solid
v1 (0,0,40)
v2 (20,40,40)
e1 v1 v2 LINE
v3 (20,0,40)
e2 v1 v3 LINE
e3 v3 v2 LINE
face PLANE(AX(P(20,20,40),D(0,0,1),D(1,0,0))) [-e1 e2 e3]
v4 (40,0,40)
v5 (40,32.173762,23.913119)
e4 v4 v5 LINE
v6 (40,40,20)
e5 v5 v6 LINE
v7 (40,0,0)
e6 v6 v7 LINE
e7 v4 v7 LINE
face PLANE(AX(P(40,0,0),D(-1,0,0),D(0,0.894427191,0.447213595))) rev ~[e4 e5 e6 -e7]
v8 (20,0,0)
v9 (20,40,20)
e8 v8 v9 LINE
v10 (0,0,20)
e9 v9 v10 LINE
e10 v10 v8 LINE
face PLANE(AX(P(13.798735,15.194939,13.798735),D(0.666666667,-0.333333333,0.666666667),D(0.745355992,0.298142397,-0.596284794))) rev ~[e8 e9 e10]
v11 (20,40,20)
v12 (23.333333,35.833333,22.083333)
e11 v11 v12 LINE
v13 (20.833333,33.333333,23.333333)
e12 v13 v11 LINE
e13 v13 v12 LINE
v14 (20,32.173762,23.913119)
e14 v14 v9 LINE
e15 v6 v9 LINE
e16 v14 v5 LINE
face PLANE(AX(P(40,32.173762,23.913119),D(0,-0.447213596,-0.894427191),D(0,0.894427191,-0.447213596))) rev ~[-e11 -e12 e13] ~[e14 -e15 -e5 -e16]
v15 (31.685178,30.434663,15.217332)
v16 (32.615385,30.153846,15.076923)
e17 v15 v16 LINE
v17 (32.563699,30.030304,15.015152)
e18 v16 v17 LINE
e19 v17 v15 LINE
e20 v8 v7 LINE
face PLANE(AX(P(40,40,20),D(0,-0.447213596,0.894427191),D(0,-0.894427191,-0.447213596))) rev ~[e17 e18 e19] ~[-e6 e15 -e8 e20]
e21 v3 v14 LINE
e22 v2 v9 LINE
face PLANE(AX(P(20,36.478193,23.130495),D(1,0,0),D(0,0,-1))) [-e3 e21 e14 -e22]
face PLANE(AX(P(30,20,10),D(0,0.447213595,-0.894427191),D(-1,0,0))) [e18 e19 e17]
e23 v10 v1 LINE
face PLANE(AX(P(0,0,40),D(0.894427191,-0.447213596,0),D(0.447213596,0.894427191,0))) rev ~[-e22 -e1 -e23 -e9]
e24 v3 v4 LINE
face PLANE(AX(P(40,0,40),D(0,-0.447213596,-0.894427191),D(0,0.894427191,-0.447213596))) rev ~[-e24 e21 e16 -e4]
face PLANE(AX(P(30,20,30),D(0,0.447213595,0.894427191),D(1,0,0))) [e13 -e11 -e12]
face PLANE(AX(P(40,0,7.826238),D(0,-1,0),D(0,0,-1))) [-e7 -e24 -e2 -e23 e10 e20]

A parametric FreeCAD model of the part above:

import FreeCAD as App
import Part
import Sketcher
Q = App.Units.Quantity


def add_polygon(sketch, points):
    """Adds a closed chain of lines whose ends are joined by coincident constraints."""
    first, n = sketch.GeometryCount, len(points)
    for a, b in zip(points, points[1:] + points[:1]):
        sketch.addGeometry(Part.LineSegment(App.Vector(*a, 0), App.Vector(*b, 0)), False)
    for i in range(n):
        sketch.addConstraint(Sketcher.Constraint("Coincident", first + i, 2, first + (i + 1) % n, 1))

doc = App.newDocument("Part")
body = doc.addObject("PartDesign::Body", "Body")
body.AllowCompound = True

sketch1 = doc.addObject("Sketcher::SketchObject", "Sketch")
body.addObject(sketch1)
sketch1.AttachmentSupport = (doc.XY_Plane, [""])
sketch1.MapMode = "FlatFace"
add_polygon(sketch1, [(0, 40), (0, 0), (40, 0), (40, 40)])
sketch1.addConstraint([
    Sketcher.Constraint("Vertical", 0),
    Sketcher.Constraint("Horizontal", 1),
    Sketcher.Constraint("Vertical", 2),
    Sketcher.Constraint("Horizontal", 3),
    Sketcher.Constraint("Coincident", 0, 2, -1, 1),
    Sketcher.Constraint("Equal", 3, 0),
    Sketcher.Constraint("DistanceX", 1, 1, 1, 2, Q("40 mm")),
])
pad1 = doc.addObject("PartDesign::Pad", "Pad")
body.addObject(pad1)
pad1.Profile = sketch1
pad1.Length = 40

sketch2 = doc.addObject("Sketcher::SketchObject", "Sketch001")
body.addObject(sketch2)
sketch2.AttachmentSupport = (doc.XY_Plane, [""])
sketch2.MapMode = "FlatFace"
sketch2.AttachmentOffset = App.Placement(App.Vector(0, 0, 40), App.Rotation())
add_polygon(sketch2, [(0, 0), (20, 40), (0, 40)])
sketch2.addConstraint([
    Sketcher.Constraint("Horizontal", 1),
    Sketcher.Constraint("Vertical", 2),
    Sketcher.Constraint("Coincident", 2, 2, -1, 1),
    Sketcher.Constraint("DistanceX", 1, 2, 1, 1, Q("20 mm")),
    Sketcher.Constraint("DistanceY", 2, 2, 2, 1, Q("40 mm")),
])
pocket1 = doc.addObject("PartDesign::Pocket", "Pocket")
body.addObject(pocket1)
pocket1.Profile = sketch2
pocket1.Length = 40

sketch3 = doc.addObject("Sketcher::SketchObject", "Sketch002")
body.addObject(sketch3)
sketch3.AttachmentSupport = (doc.XZ_Plane, [""])
sketch3.MapMode = "FlatFace"
add_polygon(sketch3, [(20, 0), (0, 20), (0, 0)])
sketch3.addConstraint([
    Sketcher.Constraint("Vertical", 1),
    Sketcher.Constraint("Horizontal", 2),
    Sketcher.Constraint("Coincident", 1, 2, -1, 1),
    Sketcher.Constraint("Equal", 2, 1),
    Sketcher.Constraint("DistanceX", 2, 1, 2, 2, Q("20 mm")),
])
pocket2 = doc.addObject("PartDesign::Pocket", "Pocket001")
body.addObject(pocket2)
pocket2.Profile = sketch3
pocket2.Length = 40

sketch4 = doc.addObject("Sketcher::SketchObject", "Sketch003")
body.addObject(sketch4)
sketch4.AttachmentSupport = (doc.YZ_Plane, [""])
sketch4.MapMode = "FlatFace"
sketch4.AttachmentOffset = App.Placement(App.Vector(0, 0, 40), App.Rotation())
add_polygon(sketch4, [(40, 40), (0, 40), (40, 20)])
add_polygon(sketch4, [(40, 0), (40, 20), (0, 0)])
sketch4.addConstraint([
    Sketcher.Constraint("Horizontal", 0),
    Sketcher.Constraint("Vertical", 2),
    Sketcher.Constraint("Vertical", 3),
    Sketcher.Constraint("Horizontal", 5),
    Sketcher.Constraint("Coincident", 4, 2, -1, 1),
    Sketcher.Constraint("Coincident", 3, 2, 1, 2),
    Sketcher.Constraint("PointOnObject", 0, 2, -2),
    Sketcher.Constraint("Equal", 2, 3),
    Sketcher.Constraint("DistanceX", 0, 2, 0, 1, Q("40 mm")),
    Sketcher.Constraint("DistanceY", 2, 1, 2, 2, Q("20 mm")),
])
pocket3 = doc.addObject("PartDesign::Pocket", "Pocket002")
body.addObject(pocket3)
pocket3.Profile = sketch4
pocket3.Length = 20

sketch5 = doc.addObject("Sketcher::SketchObject", "Sketch004")
body.addObject(sketch5)
sketch5.Placement = App.Placement(App.Vector(8.888889, -4.444444, 8.888889), App.Rotation(App.Vector(-0.745355992, -0.298142397, 0.596284794), App.Vector(0, 0.894427191, 0.447213595), App.Vector(-0.666666667, 0.333333333, -0.666666667), "ZXY"))
add_polygon(sketch5, [(-15, 0), (12, 9), (-15, 45)])
sketch5.addConstraint([
    Sketcher.Constraint("Vertical", 2),
    Sketcher.Constraint("PointOnObject", 2, 2, -1),
    Sketcher.Constraint("DistanceY", 2, 2, 2, 1, Q("44.72136 mm")),
    Sketcher.Constraint("Distance", 0, Q("28.284271 mm")),
    Sketcher.Constraint("Distance", 1, Q("44.72136 mm")),
    Sketcher.Constraint("DistanceX", 1, 2, -1, 1, Q("14.90712 mm")),
])
pocket4 = doc.addObject("PartDesign::Pocket", "Pocket003")
body.addObject(pocket4)
pocket4.Profile = sketch5
pocket4.Length = 20
pocket4.Reversed = True

sketch6 = doc.addObject("Sketcher::SketchObject", "Sketch005")
body.addObject(sketch6)
sketch6.Placement = App.Placement(App.Vector(11.111111, 4.444444, -8.888889), App.Rotation(App.Vector(0.553636532, 0.221454613, 0.802772972), App.Vector(-0.371390676, 0.92847669, 0), App.Vector(-0.745355992, -0.298142397, 0.596284794), "ZXY"))
add_polygon(sketch6, [(11, -7), (36, 30), (19, 21)])
sketch6.addConstraint([
    Sketcher.Constraint("Distance", 0, Q("44.72136 mm")),
    Sketcher.Constraint("Distance", 1, Q("19.520889 mm")),
    Sketcher.Constraint("DistanceY", -1, 1, 1, 2, Q("20.56933 mm")),
    Sketcher.Constraint("DistanceX", -1, 1, 2, 2, Q("11.072731 mm")),
    Sketcher.Constraint("Distance", 2, Q("29.027634 mm")),
    Sketcher.Constraint("DistanceX", -1, 1, 0, 2, Q("35.986375 mm")),
])
pocket5 = doc.addObject("PartDesign::Pocket", "Pocket004")
body.addObject(pocket5)
pocket5.Profile = sketch6
pocket5.Length = 20

sketch7 = doc.addObject("Sketcher::SketchObject", "Sketch006")
body.addObject(sketch7)
sketch7.Placement = App.Placement(App.Vector(-5.521049, 6.73568, -3.533471), App.Rotation(App.Vector(0.809280197, 0.520190643, -0.272886895), App.Vector(0, 0.464549364, 0.885547225), App.Vector(0.587422814, -0.716655833, 0.375950601), "ZXY"))
add_polygon(sketch7, [(32, 36), (24, 18), (32, 15)])
sketch7.addConstraint([
    Sketcher.Constraint("Vertical", 2),
    Sketcher.Constraint("Perpendicular", 0, 1),
    Sketcher.Constraint("DistanceX", 0, 2, 1, 2, Q("7.604098 mm")),
    Sketcher.Constraint("Distance", 0, Q("19.520889 mm")),
    Sketcher.Constraint("DistanceX", -1, 1, 1, 2, Q("31.535492 mm")),
    Sketcher.Constraint("DistanceY", -1, 1, 2, 2, Q("36.292919 mm")),
])
pocket6 = doc.addObject("PartDesign::Pocket", "Pocket005")
body.addObject(pocket6)
pocket6.Profile = sketch7
pocket6.Length = 20

sketch8 = doc.addObject("Sketcher::SketchObject", "Sketch007")
body.addObject(sketch8)
sketch8.AttachmentSupport = (doc.YZ_Plane, [""])
sketch8.MapMode = "FlatFace"
sketch8.AttachmentOffset = App.Placement(App.Vector(0, 0, 20), App.Rotation())
add_polygon(sketch8, [(40, 0), (40, 20), (30, 1), (0, 0)])
sketch8.addConstraint([
    Sketcher.Constraint("Vertical", 0),
    Sketcher.Constraint("Horizontal", 3),
    Sketcher.Constraint("Coincident", 2, 2, -1, 1),
    Sketcher.Constraint("DistanceX", 3, 1, 3, 2, Q("40 mm")),
    Sketcher.Constraint("DistanceY", 0, 1, 0, 2, Q("20 mm")),
    Sketcher.Constraint("DistanceY", -1, 1, 1, 2, Q("1.230769 mm")),
    Sketcher.Constraint("Distance", 1, Q("21.195065 mm")),
])
pocket7 = doc.addObject("PartDesign::Pocket", "Pocket006")
body.addObject(pocket7)
pocket7.Profile = sketch8
pocket7.Length = 20

sketch9 = doc.addObject("Sketcher::SketchObject", "Sketch008")
body.addObject(sketch9)
sketch9.Placement = App.Placement(App.Vector(7.990012, -0.399501, 9.787765), App.Rotation(App.Vector(0.774918947, 0.02577693, -0.631534777), App.Vector(0, 0.999168053, 0.04078237), App.Vector(0.632060618, -0.031603031, 0.774274256), "ZXY"))
add_polygon(sketch9, [(15, 30), (8, 28), (15, 0)])
sketch9.addConstraint([
    Sketcher.Constraint("Vertical", 2),
    Sketcher.Constraint("PointOnObject", 1, 2, -1),
    Sketcher.Constraint("Perpendicular", 0, 1),
    Sketcher.Constraint("DistanceX", -1, 1, 0, 2, Q("7.557102 mm")),
    Sketcher.Constraint("Distance", 0, Q("8.256251 mm")),
    Sketcher.Constraint("DistanceY", 2, 1, 2, 2, Q("30.178953 mm")),
])
pocket8 = doc.addObject("PartDesign::Pocket", "Pocket007")
body.addObject(pocket8)
pocket8.Profile = sketch9
pocket8.Length = 20

sketch10 = doc.addObject("Sketcher::SketchObject", "Sketch009")
body.addObject(sketch10)
sketch10.Placement = App.Placement(App.Vector(8.256092, 16.512183, 18.576206), App.Rotation(App.Vector(0.9490106, -0.209436821, -0.235616424), App.Vector(0, 0.747409319, -0.664363839), App.Vector(0.315244162, 0.630488325, 0.709299366), "ZXY"))
add_polygon(sketch10, [(12.4, 21.7), (10.5, 21.6), (5.9, 16.6)])
sketch10.addConstraint([
    Sketcher.Constraint("Distance", 2, Q("8.256251 mm")),
    Sketcher.Constraint("DistanceX", -1, 1, 0, 2, Q("10.51393 mm")),
    Sketcher.Constraint("DistanceX", -1, 1, 1, 2, Q("5.890411 mm")),
    Sketcher.Constraint("DistanceY", 1, 2, 2, 2, Q("5.110491 mm")),
    Sketcher.Constraint("Distance", 0, Q("1.866666 mm")),
    Sketcher.Constraint("DistanceY", -1, 1, 0, 2, Q("21.573833 mm")),
])
pocket9 = doc.addObject("PartDesign::Pocket", "Pocket008")
body.addObject(pocket9)
pocket9.Profile = sketch10
pocket9.Length = 20

sketch11 = doc.addObject("Sketcher::SketchObject", "Sketch010")
body.addObject(sketch11)
sketch11.Placement = App.Placement(App.Vector(10, 0, 10), App.Rotation(App.Vector(-0.707106781, 0, 0.707106781), App.Vector(0, 0.999999999, 0), App.Vector(-0.707106781, 0, -0.707106781), "ZXY"))
add_polygon(sketch11, [(-12.4, 30.15), (-12.41, 30.03), (-11.64, 30.43)])
sketch11.addConstraint([
    Sketcher.Constraint("Distance", 1, Q("0.86456 mm")),
    Sketcher.Constraint("DistanceX", 0, 2, 1, 2, Q("0.764171 mm")),
    Sketcher.Constraint("DistanceX", 0, 2, 2, 2, Q("0.007131 mm")),
    Sketcher.Constraint("DistanceY", 0, 2, 2, 2, Q("0.123542 mm")),
    Sketcher.Constraint("DistanceX", 0, 2, -1, 1, Q("12.408696 mm")),
    Sketcher.Constraint("DistanceY", -1, 1, 0, 2, Q("30.030304 mm")),
])
pocket10 = doc.addObject("PartDesign::Pocket", "Pocket009")
body.addObject(pocket10)
pocket10.Profile = sketch11
pocket10.Length = 20

sketch12 = doc.addObject("Sketcher::SketchObject", "Sketch011")
body.addObject(sketch12)
sketch12.Placement = App.Placement(App.Vector(0, 23.140148, -12.139094), App.Rotation(App.Vector(1, 0, 0), App.Vector(0, -0.464549364, -0.885547225), App.Vector(0, 0.885547225, -0.464549364), "ZXY"))
add_polygon(sketch12, [(18.2, -15.7), (20, -15.1), (18.8, -15.1)])
sketch12.addConstraint([
    Sketcher.Constraint("Horizontal", 1),
    Sketcher.Constraint("DistanceX", -1, 1, 0, 2, Q("20 mm")),
    Sketcher.Constraint("DistanceX", 1, 2, 1, 1, Q("1.230769 mm")),
    Sketcher.Constraint("DistanceY", 2, 2, -1, 1, Q("15.702348 mm")),
    Sketcher.Constraint("Distance", 0, Q("1.866666 mm")),
    Sketcher.Constraint("Distance", 2, Q("0.807445 mm")),
])
pocket11 = doc.addObject("PartDesign::Pocket", "Pocket010")
body.addObject(pocket11)
pocket11.Profile = sketch12
pocket11.Length = 20

sketch13 = doc.addObject("Sketcher::SketchObject", "Sketch012")
body.addObject(sketch13)
sketch13.Placement = App.Placement(App.Vector(0, 0, 0), App.Rotation(App.Vector(-1, 0, 0), App.Vector(0, 0.999168053, 0.04078237), App.Vector(0, 0.04078237, -0.999168053), "ZXY"))
add_polygon(sketch13, [(-18.77, 30.06), (-18.77, 30.18), (-20, 30.18)])
sketch13.addConstraint([
    Sketcher.Constraint("Horizontal", 1),
    Sketcher.Constraint("DistanceX", 1, 2, -1, 1, Q("20 mm")),
    Sketcher.Constraint("DistanceX", 1, 2, 1, 1, Q("1.230769 mm")),
    Sketcher.Constraint("DistanceY", -1, 1, 2, 2, Q("30.055309 mm")),
    Sketcher.Constraint("Distance", 0, Q("0.123747 mm")),
    Sketcher.Constraint("Distance", 2, Q("1.231947 mm")),
])
pocket12 = doc.addObject("PartDesign::Pocket", "Pocket011")
body.addObject(pocket12)
pocket12.Profile = sketch13
pocket12.Length = 7

sketch14 = doc.addObject("Sketcher::SketchObject", "Sketch013")
body.addObject(sketch14)
sketch14.Placement = App.Placement(App.Vector(0, 0, 0), App.Rotation(App.Vector(-1, 0, 0), App.Vector(0, 0.894427191, 0.447213595), App.Vector(0, 0.447213595, -0.894427191), "ZXY"))
add_polygon(sketch14, [(-40, 45), (-40, 0), (-20, 0), (-20, 45)])
sketch14.addConstraint([
    Sketcher.Constraint("Vertical", 0),
    Sketcher.Constraint("Horizontal", 1),
    Sketcher.Constraint("Vertical", 2),
    Sketcher.Constraint("Horizontal", 3),
    Sketcher.Constraint("PointOnObject", 0, 2, -1),
    Sketcher.Constraint("DistanceX", 1, 1, 1, 2, Q("20 mm")),
    Sketcher.Constraint("DistanceX", 0, 2, -1, 1, Q("40 mm")),
    Sketcher.Constraint("DistanceY", 0, 2, 0, 1, Q("44.72136 mm")),
])
pad2 = doc.addObject("PartDesign::Pad", "Pad001")
body.addObject(pad2)
pad2.Profile = sketch14
pad2.Length = 7
pad2.Reversed = True

sketch15 = doc.addObject("Sketcher::SketchObject", "Sketch014")
body.addObject(sketch15)
sketch15.AttachmentSupport = (doc.YZ_Plane, [""])
sketch15.MapMode = "FlatFace"
sketch15.AttachmentOffset = App.Placement(App.Vector(0, 0, 40), App.Rotation())
add_polygon(sketch15, [(0, 0), (0, 7.8), (-3.1, 6.3)])
add_polygon(sketch15, [(32.2, 23.9), (40, 20), (36.9, 26.3)])
sketch15.addConstraint([
    Sketcher.Constraint("Vertical", 0),
    Sketcher.Constraint("Coincident", 2, 2, -1, 1),
    Sketcher.Constraint("Perpendicular", 1, 2),
    Sketcher.Constraint("Parallel", 2, 4),
    Sketcher.Constraint("Perpendicular", 4, 5),
    Sketcher.Constraint("Equal", 2, 4),
    Sketcher.Constraint("Distance", 2, Q("7 mm")),
    Sketcher.Constraint("DistanceX", -1, 1, 3, 2, Q("40 mm")),
    Sketcher.Constraint("DistanceY", -1, 1, 3, 2, Q("20 mm")),
    Sketcher.Constraint("Distance", 1, Q("3.5 mm")),
    Sketcher.Constraint("Distance", 3, Q("8.75 mm")),
])
pocket13 = doc.addObject("PartDesign::Pocket", "Pocket012")
body.addObject(pocket13)
pocket13.Profile = sketch15
pocket13.Length = 20

sketch16 = doc.addObject("Sketcher::SketchObject", "Sketch015")
body.addObject(sketch16)
sketch16.Placement = App.Placement(App.Vector(8.888889, -4.444444, 8.888889), App.Rotation(App.Vector(-0.596284794, 0.298142397, 0.745355992), App.Vector(0.447213595, 0.894427191, 0), App.Vector(-0.666666667, 0.333333333, -0.666666667), "ZXY"))
add_polygon(sketch16, [(15, 45), (-12, 9), (15, 0)])
sketch16.addConstraint([
    Sketcher.Constraint("Vertical", 2),
    Sketcher.Constraint("PointOnObject", 1, 2, -1),
    Sketcher.Constraint("DistanceY", 2, 1, 2, 2, Q("44.72136 mm")),
    Sketcher.Constraint("Distance", 0, Q("44.72136 mm")),
    Sketcher.Constraint("Distance", 1, Q("28.284271 mm")),
    Sketcher.Constraint("DistanceX", -1, 1, 1, 2, Q("14.90712 mm")),
])
pad3 = doc.addObject("PartDesign::Pad", "Pad002")
body.addObject(pad3)
pad3.Profile = sketch16
pad3.Length = 2
pad3.Reversed = True

sketch17 = doc.addObject("Sketcher::SketchObject", "Sketch016")
body.addObject(sketch17)
sketch17.Placement = App.Placement(App.Vector(0, 16, 32), App.Rotation(App.Vector(1, 0, 0), App.Vector(0, 0.894427191, -0.447213595), App.Vector(0, 0.447213595, 0.894427191), "ZXY"))
add_polygon(sketch17, [(20, 27), (20, -18), (40, -18), (40, 27)])
sketch17.addConstraint([
    Sketcher.Constraint("Vertical", 0),
    Sketcher.Constraint("Horizontal", 1),
    Sketcher.Constraint("Vertical", 2),
    Sketcher.Constraint("Horizontal", 3),
    Sketcher.Constraint("DistanceX", 1, 1, 1, 2, Q("20 mm")),
    Sketcher.Constraint("DistanceX", -1, 1, 0, 2, Q("20 mm")),
    Sketcher.Constraint("DistanceY", 0, 2, 0, 1, Q("44.72136 mm")),
    Sketcher.Constraint("DistanceY", 0, 2, -1, 1, Q("17.888544 mm")),
])
pocket14 = doc.addObject("PartDesign::Pocket", "Pocket013")
body.addObject(pocket14)
pocket14.Profile = sketch17
pocket14.Length = 2
pocket14.Reversed = True

sketch18 = doc.addObject("Sketcher::SketchObject", "Sketch017")
body.addObject(sketch18)
sketch18.AttachmentSupport = (doc.XZ_Plane, [""])
sketch18.MapMode = "FlatFace"
add_polygon(sketch18, [(0, 40), (0, 0), (40, 0), (40, 40)])
sketch18.addConstraint([
    Sketcher.Constraint("Vertical", 0),
    Sketcher.Constraint("Horizontal", 1),
    Sketcher.Constraint("Vertical", 2),
    Sketcher.Constraint("Horizontal", 3),
    Sketcher.Constraint("Coincident", 0, 2, -1, 1),
    Sketcher.Constraint("Equal", 3, 0),
    Sketcher.Constraint("DistanceX", 1, 1, 1, 2, Q("40 mm")),
])
pocket15 = doc.addObject("PartDesign::Pocket", "Pocket014")
body.addObject(pocket15)
pocket15.Profile = sketch18
pocket15.Length = 20
pocket15.Reversed = True

sketch19 = doc.addObject("Sketcher::SketchObject", "Sketch018")
body.addObject(sketch19)
sketch19.Placement = App.Placement(App.Vector(8.888889, -4.444444, 8.888889), App.Rotation(App.Vector(-0.596284794, 0.298142397, 0.745355992), App.Vector(0.447213595, 0.894427191, 0), App.Vector(-0.666666667, 0.333333333, -0.666666667), "ZXY"))
add_polygon(sketch19, [(15, 0), (15, 45), (-12, 9)])
sketch19.addConstraint([
    Sketcher.Constraint("Vertical", 0),
    Sketcher.Constraint("PointOnObject", 2, 2, -1),
    Sketcher.Constraint("DistanceY", 0, 1, 0, 2, Q("44.72136 mm")),
    Sketcher.Constraint("Distance", 1, Q("44.72136 mm")),
    Sketcher.Constraint("Distance", 2, Q("28.284271 mm")),
    Sketcher.Constraint("DistanceX", -1, 1, 0, 2, Q("14.90712 mm")),
])
pad4 = doc.addObject("PartDesign::Pad", "Pad003")
body.addObject(pad4)
pad4.Profile = sketch19
pad4.Length = 5
pad4.Reversed = True

sketch20 = doc.addObject("Sketcher::SketchObject", "Sketch019")
body.addObject(sketch20)
sketch20.Placement = App.Placement(App.Vector(0, 16, 32), App.Rotation(App.Vector(1, 0, 0), App.Vector(0, 0.894427191, -0.447213595), App.Vector(0, 0.447213595, 0.894427191), "ZXY"))
add_polygon(sketch20, [(20, 27), (20, -18), (40, -18), (40, 27)])
sketch20.addConstraint([
    Sketcher.Constraint("Vertical", 0),
    Sketcher.Constraint("Horizontal", 1),
    Sketcher.Constraint("Vertical", 2),
    Sketcher.Constraint("Horizontal", 3),
    Sketcher.Constraint("DistanceX", 1, 1, 1, 2, Q("20 mm")),
    Sketcher.Constraint("DistanceX", -1, 1, 0, 2, Q("20 mm")),
    Sketcher.Constraint("DistanceY", 0, 2, 0, 1, Q("44.72136 mm")),
    Sketcher.Constraint("DistanceY", 0, 2, -1, 1, Q("17.888544 mm")),
])
pocket16 = doc.addObject("PartDesign::Pocket", "Pocket015")
body.addObject(pocket16)
pocket16.Profile = sketch20
pocket16.Length = 5
pocket16.Reversed = True

sketch21 = doc.addObject("Sketcher::SketchObject", "Sketch020")
body.addObject(sketch21)
sketch21.AttachmentSupport = (doc.XZ_Plane, [""])
sketch21.MapMode = "FlatFace"
add_polygon(sketch21, [(0, 40), (0, 0), (40, 0), (40, 40)])
sketch21.addConstraint([
    Sketcher.Constraint("Vertical", 0),
    Sketcher.Constraint("Horizontal", 1),
    Sketcher.Constraint("Vertical", 2),
    Sketcher.Constraint("Horizontal", 3),
    Sketcher.Constraint("Coincident", 0, 2, -1, 1),
    Sketcher.Constraint("Equal", 3, 0),
    Sketcher.Constraint("DistanceX", 1, 1, 1, 2, Q("40 mm")),
])
pocket17 = doc.addObject("PartDesign::Pocket", "Pocket016")
body.addObject(pocket17)
pocket17.Profile = sketch21
pocket17.Length = 5
pocket17.Reversed = True

doc.recompute()
